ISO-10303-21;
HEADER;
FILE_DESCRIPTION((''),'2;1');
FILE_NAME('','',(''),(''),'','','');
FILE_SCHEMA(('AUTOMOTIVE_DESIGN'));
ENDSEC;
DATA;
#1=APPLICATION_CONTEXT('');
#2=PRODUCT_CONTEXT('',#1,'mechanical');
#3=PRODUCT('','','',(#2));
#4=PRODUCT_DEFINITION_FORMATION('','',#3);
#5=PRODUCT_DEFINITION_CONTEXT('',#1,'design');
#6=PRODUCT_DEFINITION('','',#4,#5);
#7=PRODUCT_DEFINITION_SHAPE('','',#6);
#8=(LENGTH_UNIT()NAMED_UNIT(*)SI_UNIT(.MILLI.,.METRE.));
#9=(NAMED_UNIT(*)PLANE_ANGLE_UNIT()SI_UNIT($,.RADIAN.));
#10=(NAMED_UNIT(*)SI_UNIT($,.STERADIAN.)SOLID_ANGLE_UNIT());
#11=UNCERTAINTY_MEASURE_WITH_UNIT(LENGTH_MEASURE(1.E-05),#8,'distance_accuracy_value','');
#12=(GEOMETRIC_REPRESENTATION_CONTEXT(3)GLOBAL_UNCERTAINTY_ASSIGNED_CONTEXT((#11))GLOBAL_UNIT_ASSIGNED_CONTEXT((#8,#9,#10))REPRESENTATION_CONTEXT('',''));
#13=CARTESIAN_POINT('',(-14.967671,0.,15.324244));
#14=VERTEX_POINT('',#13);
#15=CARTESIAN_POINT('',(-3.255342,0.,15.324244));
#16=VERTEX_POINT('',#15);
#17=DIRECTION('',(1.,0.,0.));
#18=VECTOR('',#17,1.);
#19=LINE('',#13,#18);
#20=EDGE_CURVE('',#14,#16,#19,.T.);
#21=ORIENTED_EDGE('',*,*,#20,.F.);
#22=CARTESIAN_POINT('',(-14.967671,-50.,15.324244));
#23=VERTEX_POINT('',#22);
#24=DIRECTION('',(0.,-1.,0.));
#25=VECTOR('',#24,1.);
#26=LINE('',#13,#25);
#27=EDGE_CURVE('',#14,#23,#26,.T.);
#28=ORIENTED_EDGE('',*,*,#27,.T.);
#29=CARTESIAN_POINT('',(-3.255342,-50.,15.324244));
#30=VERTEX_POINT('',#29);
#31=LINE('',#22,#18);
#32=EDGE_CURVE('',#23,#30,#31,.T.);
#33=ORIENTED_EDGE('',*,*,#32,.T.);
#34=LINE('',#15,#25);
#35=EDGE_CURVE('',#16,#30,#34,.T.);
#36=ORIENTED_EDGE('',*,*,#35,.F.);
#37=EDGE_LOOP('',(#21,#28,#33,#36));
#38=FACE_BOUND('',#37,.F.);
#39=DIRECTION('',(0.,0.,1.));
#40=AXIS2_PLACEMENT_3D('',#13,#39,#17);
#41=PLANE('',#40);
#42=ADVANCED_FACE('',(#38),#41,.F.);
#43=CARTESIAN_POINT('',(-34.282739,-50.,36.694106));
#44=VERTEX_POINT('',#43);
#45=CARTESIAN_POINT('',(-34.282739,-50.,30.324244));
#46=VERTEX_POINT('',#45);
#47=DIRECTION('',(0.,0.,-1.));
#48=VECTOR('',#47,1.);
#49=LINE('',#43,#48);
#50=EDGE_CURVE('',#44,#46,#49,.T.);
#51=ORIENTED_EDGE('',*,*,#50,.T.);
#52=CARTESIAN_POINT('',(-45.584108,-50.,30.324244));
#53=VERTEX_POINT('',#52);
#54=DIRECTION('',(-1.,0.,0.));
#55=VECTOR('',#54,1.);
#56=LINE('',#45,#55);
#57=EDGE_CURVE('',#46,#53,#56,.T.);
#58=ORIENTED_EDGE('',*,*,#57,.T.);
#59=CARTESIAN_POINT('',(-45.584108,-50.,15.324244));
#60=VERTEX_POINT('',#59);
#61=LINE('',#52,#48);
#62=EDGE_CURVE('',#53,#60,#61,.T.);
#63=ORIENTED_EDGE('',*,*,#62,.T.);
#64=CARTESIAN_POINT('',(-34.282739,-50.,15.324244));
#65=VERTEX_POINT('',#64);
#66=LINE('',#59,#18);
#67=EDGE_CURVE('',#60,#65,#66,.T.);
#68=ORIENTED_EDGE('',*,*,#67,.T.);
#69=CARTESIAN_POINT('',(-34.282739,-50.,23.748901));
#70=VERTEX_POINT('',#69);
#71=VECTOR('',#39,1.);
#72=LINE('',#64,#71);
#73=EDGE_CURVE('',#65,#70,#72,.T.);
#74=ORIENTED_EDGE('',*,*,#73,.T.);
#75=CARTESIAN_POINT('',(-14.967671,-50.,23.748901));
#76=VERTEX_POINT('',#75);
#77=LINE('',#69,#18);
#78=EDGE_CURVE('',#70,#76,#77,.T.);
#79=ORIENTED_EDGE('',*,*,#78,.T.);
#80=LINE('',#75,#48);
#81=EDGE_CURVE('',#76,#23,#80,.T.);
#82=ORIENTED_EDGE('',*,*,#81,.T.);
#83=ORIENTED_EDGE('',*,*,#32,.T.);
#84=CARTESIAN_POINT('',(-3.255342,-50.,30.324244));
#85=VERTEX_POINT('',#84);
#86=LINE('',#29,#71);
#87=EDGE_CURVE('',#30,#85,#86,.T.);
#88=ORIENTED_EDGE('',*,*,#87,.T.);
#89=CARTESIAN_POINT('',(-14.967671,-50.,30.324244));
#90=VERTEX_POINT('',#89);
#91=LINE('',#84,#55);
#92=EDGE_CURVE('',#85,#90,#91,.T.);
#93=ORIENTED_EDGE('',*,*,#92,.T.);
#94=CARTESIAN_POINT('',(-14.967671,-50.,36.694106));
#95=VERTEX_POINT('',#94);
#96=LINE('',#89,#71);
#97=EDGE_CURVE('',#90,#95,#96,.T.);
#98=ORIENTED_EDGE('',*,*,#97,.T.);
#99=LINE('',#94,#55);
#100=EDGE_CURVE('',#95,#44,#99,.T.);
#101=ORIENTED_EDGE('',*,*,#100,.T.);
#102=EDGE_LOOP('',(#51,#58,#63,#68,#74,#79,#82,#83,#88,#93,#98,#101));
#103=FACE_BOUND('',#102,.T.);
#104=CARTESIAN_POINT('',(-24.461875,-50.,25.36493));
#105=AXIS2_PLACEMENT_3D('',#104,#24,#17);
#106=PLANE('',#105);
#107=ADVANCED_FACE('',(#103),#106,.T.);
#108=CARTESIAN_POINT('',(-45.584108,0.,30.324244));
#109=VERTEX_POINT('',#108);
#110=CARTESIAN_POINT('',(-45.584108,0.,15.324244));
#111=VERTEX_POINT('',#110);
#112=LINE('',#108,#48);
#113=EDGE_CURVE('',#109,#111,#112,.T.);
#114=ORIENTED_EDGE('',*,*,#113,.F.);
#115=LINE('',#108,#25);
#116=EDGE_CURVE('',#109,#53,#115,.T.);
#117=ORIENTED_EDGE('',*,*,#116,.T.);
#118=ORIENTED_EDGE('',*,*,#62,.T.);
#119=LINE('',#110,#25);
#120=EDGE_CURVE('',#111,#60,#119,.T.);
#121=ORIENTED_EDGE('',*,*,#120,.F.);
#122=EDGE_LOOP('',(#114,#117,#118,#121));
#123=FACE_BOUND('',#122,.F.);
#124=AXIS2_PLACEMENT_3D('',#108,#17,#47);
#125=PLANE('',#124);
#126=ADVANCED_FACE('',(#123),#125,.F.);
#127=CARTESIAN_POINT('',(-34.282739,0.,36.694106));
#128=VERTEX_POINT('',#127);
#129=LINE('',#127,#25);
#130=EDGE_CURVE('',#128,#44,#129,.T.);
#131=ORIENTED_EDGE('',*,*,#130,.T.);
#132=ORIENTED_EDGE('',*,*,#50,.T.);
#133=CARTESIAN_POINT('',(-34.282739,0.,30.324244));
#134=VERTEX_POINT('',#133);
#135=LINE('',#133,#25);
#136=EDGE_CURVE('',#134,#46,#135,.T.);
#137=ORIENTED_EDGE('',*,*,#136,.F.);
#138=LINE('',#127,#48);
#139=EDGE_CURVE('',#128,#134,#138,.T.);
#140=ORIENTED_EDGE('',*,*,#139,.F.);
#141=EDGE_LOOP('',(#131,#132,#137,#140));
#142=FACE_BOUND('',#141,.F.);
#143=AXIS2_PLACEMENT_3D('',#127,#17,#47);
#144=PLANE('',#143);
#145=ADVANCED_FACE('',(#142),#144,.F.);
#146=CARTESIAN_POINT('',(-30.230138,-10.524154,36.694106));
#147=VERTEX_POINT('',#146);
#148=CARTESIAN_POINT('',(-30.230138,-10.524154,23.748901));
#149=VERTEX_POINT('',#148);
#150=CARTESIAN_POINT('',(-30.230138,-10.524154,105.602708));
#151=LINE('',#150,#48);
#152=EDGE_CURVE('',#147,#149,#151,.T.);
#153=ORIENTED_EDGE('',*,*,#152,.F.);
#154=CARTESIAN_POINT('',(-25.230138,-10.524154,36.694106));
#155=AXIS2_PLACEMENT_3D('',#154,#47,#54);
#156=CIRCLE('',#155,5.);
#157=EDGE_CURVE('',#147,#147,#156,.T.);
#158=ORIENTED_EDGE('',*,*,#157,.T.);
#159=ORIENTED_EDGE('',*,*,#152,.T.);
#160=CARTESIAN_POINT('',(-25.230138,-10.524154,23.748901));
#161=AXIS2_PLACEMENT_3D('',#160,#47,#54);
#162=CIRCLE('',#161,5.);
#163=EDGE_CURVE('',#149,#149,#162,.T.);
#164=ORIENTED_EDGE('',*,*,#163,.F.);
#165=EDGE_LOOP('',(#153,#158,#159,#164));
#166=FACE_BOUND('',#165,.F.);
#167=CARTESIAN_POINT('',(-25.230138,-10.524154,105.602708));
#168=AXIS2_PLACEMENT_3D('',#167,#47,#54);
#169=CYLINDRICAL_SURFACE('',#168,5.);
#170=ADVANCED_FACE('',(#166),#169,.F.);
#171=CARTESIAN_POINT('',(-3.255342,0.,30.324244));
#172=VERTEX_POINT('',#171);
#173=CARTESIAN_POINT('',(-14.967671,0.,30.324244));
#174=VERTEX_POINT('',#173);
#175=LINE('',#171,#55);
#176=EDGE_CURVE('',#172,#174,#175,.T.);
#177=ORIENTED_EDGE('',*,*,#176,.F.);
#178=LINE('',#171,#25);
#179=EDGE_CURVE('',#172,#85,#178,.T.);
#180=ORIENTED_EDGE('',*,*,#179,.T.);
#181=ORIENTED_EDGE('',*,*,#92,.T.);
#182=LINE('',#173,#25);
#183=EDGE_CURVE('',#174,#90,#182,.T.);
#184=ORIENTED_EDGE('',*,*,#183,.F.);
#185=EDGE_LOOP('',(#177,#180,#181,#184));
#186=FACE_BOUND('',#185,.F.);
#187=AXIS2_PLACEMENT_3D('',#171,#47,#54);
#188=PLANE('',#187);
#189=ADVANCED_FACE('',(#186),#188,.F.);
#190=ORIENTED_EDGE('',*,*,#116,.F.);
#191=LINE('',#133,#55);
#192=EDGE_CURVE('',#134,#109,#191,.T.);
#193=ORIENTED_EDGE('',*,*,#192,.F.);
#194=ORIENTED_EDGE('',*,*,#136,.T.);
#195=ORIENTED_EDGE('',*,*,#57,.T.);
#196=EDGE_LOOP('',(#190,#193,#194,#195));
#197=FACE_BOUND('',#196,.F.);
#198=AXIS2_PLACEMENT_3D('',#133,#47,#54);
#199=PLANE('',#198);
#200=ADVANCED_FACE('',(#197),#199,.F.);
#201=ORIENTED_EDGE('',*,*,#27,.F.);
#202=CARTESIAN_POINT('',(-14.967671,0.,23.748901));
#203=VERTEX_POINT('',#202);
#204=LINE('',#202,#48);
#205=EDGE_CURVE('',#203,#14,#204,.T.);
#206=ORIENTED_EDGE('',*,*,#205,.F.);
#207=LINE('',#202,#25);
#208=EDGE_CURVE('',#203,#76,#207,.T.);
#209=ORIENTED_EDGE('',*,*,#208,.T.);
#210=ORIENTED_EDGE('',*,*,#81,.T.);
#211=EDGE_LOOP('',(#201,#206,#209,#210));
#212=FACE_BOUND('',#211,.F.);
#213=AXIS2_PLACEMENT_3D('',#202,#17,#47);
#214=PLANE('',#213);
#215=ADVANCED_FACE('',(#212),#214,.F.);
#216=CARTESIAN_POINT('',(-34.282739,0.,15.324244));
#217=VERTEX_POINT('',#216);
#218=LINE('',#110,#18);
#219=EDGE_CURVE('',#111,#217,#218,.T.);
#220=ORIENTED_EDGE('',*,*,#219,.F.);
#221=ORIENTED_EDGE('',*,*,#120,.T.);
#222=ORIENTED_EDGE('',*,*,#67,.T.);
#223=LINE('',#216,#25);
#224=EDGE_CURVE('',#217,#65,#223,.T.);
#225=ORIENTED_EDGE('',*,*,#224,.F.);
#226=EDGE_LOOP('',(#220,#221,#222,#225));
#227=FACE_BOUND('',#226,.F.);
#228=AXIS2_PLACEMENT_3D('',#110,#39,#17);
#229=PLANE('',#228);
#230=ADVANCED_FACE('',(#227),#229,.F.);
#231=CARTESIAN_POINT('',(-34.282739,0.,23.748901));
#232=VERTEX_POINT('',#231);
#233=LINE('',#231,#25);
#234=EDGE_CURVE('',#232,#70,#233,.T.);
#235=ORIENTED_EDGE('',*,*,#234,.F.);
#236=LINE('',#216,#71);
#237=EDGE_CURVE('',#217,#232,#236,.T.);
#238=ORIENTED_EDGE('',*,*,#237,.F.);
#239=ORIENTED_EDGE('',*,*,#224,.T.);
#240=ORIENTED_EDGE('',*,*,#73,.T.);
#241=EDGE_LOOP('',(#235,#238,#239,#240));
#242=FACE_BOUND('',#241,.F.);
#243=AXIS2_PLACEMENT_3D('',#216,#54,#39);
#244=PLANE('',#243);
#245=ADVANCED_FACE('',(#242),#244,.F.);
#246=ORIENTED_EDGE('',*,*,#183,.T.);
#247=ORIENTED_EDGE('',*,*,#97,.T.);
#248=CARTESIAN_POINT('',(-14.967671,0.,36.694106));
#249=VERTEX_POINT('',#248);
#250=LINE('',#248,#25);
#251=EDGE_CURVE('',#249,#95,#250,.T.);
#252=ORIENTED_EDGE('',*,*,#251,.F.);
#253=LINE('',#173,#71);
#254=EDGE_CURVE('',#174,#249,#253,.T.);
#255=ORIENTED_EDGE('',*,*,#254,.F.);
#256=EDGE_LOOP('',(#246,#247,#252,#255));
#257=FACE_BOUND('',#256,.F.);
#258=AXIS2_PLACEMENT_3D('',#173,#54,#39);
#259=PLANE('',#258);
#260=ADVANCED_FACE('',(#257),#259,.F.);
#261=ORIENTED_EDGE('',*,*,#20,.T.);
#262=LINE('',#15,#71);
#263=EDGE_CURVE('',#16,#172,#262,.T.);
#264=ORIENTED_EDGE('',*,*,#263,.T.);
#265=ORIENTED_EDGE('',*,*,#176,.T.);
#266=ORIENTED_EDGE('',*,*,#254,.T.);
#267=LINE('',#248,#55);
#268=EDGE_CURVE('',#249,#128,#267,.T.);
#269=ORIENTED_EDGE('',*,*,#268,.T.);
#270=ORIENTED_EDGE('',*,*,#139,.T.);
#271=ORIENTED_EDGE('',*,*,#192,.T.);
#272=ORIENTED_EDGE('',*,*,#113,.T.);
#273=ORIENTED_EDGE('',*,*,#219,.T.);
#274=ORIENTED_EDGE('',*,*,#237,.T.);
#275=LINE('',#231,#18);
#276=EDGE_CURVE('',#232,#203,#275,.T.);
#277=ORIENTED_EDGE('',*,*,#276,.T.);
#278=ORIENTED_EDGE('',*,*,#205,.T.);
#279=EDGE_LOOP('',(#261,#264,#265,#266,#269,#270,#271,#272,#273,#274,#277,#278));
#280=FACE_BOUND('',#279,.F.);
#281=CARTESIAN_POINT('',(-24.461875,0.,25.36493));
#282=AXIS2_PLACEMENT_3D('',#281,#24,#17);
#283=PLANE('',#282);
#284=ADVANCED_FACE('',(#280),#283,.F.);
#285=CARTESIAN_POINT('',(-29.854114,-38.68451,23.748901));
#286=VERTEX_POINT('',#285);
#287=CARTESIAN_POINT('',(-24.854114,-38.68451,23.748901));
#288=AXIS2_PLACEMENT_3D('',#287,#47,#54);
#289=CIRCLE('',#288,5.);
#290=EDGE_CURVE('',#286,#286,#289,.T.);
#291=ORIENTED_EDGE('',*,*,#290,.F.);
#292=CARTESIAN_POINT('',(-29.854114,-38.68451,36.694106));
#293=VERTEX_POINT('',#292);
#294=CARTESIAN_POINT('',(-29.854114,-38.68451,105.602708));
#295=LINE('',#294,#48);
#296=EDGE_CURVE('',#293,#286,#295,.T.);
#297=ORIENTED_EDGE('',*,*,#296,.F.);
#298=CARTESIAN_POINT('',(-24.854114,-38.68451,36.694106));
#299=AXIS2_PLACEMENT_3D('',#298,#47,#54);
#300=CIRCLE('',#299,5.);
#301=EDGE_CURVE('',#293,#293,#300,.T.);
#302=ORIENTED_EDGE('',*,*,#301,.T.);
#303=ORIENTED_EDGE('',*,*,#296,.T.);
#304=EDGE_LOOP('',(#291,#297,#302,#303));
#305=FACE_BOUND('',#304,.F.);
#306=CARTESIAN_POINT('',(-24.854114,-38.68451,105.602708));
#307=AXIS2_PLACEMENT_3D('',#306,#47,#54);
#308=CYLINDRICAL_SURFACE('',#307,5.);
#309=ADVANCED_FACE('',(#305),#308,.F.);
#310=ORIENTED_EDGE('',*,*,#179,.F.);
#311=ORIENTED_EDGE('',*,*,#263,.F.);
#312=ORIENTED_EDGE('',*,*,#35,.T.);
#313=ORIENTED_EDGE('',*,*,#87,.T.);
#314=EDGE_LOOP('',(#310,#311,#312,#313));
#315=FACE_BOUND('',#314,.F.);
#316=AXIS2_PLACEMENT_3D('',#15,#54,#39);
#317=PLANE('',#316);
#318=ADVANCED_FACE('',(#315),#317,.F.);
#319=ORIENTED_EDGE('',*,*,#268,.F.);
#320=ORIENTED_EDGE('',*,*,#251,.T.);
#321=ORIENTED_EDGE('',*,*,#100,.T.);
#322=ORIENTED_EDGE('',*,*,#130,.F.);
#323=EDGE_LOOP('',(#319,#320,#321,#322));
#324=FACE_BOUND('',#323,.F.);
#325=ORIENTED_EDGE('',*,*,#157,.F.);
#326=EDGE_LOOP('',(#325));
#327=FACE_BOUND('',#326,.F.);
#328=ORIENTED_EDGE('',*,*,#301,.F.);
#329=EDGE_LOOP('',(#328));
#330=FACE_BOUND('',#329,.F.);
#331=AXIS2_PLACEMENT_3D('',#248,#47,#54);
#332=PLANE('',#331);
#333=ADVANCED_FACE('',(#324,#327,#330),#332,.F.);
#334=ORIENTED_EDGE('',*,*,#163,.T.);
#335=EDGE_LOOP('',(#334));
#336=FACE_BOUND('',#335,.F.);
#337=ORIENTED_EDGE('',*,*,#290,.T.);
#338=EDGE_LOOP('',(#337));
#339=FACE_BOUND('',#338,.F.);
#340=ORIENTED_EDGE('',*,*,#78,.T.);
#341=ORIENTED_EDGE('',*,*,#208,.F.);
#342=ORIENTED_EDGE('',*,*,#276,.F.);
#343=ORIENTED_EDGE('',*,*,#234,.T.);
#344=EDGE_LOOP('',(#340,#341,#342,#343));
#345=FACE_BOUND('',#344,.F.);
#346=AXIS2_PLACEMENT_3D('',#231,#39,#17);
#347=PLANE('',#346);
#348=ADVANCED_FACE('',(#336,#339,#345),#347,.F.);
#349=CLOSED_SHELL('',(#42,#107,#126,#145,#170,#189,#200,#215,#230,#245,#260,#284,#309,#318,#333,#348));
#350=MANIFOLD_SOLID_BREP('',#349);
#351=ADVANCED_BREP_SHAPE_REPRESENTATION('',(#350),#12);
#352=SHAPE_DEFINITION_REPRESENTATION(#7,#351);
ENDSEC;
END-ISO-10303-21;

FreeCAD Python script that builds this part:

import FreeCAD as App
import Part
import Sketcher

V = App.Vector

doc = App.newDocument("Part")
params = doc.addObject("Spreadsheet::Sheet", "Params")
for row, (alias, value) in enumerate([
    ("sketch1_height", "15 mm"),
    ("pad1_length", "50 mm"),
    ("sketch2_diameter", "10 mm"),
    ("hole_diameter", "10 mm"),
    ("sketch3_diameter", "10 mm"),
    ("hole2_diameter", "10 mm"),
], start=1):
    params.set(f"A{row}", alias)
    params.set(f"B{row}", "=" + value)
    params.setAlias(f"B{row}", alias)

body = doc.addObject("PartDesign::Body", "Body")

sketch1 = body.newObject("Sketcher::SketchObject", "Sketch")
sketch1.AttachmentSupport = (doc.getObject("XZ_Plane"), [""])
sketch1.MapMode = "FlatFace"
sketch1.addGeometry([
    Part.LineSegment(V(-46, 30, 0), V(-46, 15, 0)),
    Part.LineSegment(V(-46, 15, 0), V(-34, 15, 0)),
    Part.LineSegment(V(-34, 15, 0), V(-34, 24, 0)),
    Part.LineSegment(V(-34, 24, 0), V(-15, 24, 0)),
    Part.LineSegment(V(-15, 24, 0), V(-15, 15, 0)),
    Part.LineSegment(V(-15, 15, 0), V(-3, 15, 0)),
    Part.LineSegment(V(-3, 15, 0), V(-3, 30, 0)),
    Part.LineSegment(V(-3, 30, 0), V(-15, 30, 0)),
    Part.LineSegment(V(-15, 30, 0), V(-15, 37, 0)),
    Part.LineSegment(V(-15, 37, 0), V(-34, 37, 0)),
    Part.LineSegment(V(-34, 37, 0), V(-34, 30, 0)),
    Part.LineSegment(V(-34, 30, 0), V(-46, 30, 0)),
], False)
sketch1.addConstraint([
    Sketcher.Constraint("Coincident", 0, 2, 1, 1),
    Sketcher.Constraint("Coincident", 1, 2, 2, 1),
    Sketcher.Constraint("Coincident", 2, 2, 3, 1),
    Sketcher.Constraint("Coincident", 3, 2, 4, 1),
    Sketcher.Constraint("Coincident", 4, 2, 5, 1),
    Sketcher.Constraint("Coincident", 5, 2, 6, 1),
    Sketcher.Constraint("Coincident", 6, 2, 7, 1),
    Sketcher.Constraint("Coincident", 7, 2, 8, 1),
    Sketcher.Constraint("Coincident", 8, 2, 9, 1),
    Sketcher.Constraint("Coincident", 9, 2, 10, 1),
    Sketcher.Constraint("Coincident", 10, 2, 11, 1),
    Sketcher.Constraint("Coincident", 11, 2, 0, 1),
    Sketcher.Constraint("Vertical", 0),
    Sketcher.Constraint("Horizontal", 1),
    Sketcher.Constraint("Vertical", 2),
    Sketcher.Constraint("Horizontal", 3),
    Sketcher.Constraint("Vertical", 4),
    Sketcher.Constraint("Horizontal", 5),
    Sketcher.Constraint("Vertical", 6),
    Sketcher.Constraint("Horizontal", 7),
    Sketcher.Constraint("Vertical", 8),
    Sketcher.Constraint("Horizontal", 9),
    Sketcher.Constraint("Vertical", 10),
    Sketcher.Constraint("Horizontal", 11),
    Sketcher.Constraint("Horizontal", 1, 2, 4, 2),
    Sketcher.Constraint("Horizontal", 7, 2, 10, 2),
    Sketcher.Constraint("Vertical", 4, 2, 7, 2),
    Sketcher.Constraint("Vertical", 2, 2, 9, 2),
    Sketcher.Constraint("DistanceY", 0, 2, 0, 1, 15.0),
    Sketcher.Constraint("DistanceX", 1, 1, 1, 2, 11.301369),
    Sketcher.Constraint("DistanceX", 3, 1, 3, 2, 19.315068),
    Sketcher.Constraint("DistanceX", 5, 1, 5, 2, 11.712329),
    Sketcher.Constraint("DistanceY", 8, 1, 8, 2, 6.369862),
    Sketcher.Constraint("DistanceY", -1, 1, 2, 2, 23.748901),
    Sketcher.Constraint("DistanceY", 2, 1, 2, 2, 8.424657),
    Sketcher.Constraint("DistanceX", 1, 2, -1, 1, 34.282739),
])
sketch1.setExpression("Constraints[28]", "Params.sketch1_height")
pad1 = body.newObject("PartDesign::Pad", "Pad")
pad1.Profile = sketch1
pad1.setExpression("Length", "Params.pad1_length")

sketch2 = body.newObject("Sketcher::SketchObject", "Sketch001")
sketch2.AttachmentSupport = (doc.getObject("XY_Plane"), [""])
sketch2.MapMode = "FlatFace"
sketch2.AttachmentOffset = App.Placement(V(0, 0, 36.694106), App.Rotation())
sketch2.addGeometry(Part.Circle(V(-25, -11, 0), V(0, 0, 1), 5), False)
sketch2.addConstraint([
    Sketcher.Constraint("Diameter", 0, 10.0),
    Sketcher.Constraint("DistanceX", 0, 3, -1, 1, 25.230138),
    Sketcher.Constraint("DistanceY", 0, 3, -1, 1, 10.524154),
])
sketch2.setExpression("Constraints[0]", "Params.sketch2_diameter")
doc.recompute()
hole = body.newObject("PartDesign::Hole", "Hole")
hole.Profile = sketch2
hole.ThreadType = "None"
hole.setExpression("Diameter", "Params.hole_diameter")
hole.DepthType = "ThroughAll"

sketch3 = body.newObject("Sketcher::SketchObject", "Sketch002")
sketch3.AttachmentSupport = (doc.getObject("XY_Plane"), [""])
sketch3.MapMode = "FlatFace"
sketch3.AttachmentOffset = App.Placement(V(0, 0, 36.694106), App.Rotation())
sketch3.addGeometry(Part.Circle(V(-25, -39, 0), V(0, 0, 1), 5), False)
sketch3.addConstraint([
    Sketcher.Constraint("Diameter", 0, 10.0),
    Sketcher.Constraint("DistanceY", 0, 3, -1, 1, 38.68451),
    Sketcher.Constraint("DistanceX", 0, 3, -1, 1, 24.854114),
])
sketch3.setExpression("Constraints[0]", "Params.sketch3_diameter")
doc.recompute()
hole2 = body.newObject("PartDesign::Hole", "Hole001")
hole2.Profile = sketch3
hole2.ThreadType = "None"
hole2.setExpression("Diameter", "Params.hole2_diameter")
hole2.DepthType = "ThroughAll"

doc.recompute()
